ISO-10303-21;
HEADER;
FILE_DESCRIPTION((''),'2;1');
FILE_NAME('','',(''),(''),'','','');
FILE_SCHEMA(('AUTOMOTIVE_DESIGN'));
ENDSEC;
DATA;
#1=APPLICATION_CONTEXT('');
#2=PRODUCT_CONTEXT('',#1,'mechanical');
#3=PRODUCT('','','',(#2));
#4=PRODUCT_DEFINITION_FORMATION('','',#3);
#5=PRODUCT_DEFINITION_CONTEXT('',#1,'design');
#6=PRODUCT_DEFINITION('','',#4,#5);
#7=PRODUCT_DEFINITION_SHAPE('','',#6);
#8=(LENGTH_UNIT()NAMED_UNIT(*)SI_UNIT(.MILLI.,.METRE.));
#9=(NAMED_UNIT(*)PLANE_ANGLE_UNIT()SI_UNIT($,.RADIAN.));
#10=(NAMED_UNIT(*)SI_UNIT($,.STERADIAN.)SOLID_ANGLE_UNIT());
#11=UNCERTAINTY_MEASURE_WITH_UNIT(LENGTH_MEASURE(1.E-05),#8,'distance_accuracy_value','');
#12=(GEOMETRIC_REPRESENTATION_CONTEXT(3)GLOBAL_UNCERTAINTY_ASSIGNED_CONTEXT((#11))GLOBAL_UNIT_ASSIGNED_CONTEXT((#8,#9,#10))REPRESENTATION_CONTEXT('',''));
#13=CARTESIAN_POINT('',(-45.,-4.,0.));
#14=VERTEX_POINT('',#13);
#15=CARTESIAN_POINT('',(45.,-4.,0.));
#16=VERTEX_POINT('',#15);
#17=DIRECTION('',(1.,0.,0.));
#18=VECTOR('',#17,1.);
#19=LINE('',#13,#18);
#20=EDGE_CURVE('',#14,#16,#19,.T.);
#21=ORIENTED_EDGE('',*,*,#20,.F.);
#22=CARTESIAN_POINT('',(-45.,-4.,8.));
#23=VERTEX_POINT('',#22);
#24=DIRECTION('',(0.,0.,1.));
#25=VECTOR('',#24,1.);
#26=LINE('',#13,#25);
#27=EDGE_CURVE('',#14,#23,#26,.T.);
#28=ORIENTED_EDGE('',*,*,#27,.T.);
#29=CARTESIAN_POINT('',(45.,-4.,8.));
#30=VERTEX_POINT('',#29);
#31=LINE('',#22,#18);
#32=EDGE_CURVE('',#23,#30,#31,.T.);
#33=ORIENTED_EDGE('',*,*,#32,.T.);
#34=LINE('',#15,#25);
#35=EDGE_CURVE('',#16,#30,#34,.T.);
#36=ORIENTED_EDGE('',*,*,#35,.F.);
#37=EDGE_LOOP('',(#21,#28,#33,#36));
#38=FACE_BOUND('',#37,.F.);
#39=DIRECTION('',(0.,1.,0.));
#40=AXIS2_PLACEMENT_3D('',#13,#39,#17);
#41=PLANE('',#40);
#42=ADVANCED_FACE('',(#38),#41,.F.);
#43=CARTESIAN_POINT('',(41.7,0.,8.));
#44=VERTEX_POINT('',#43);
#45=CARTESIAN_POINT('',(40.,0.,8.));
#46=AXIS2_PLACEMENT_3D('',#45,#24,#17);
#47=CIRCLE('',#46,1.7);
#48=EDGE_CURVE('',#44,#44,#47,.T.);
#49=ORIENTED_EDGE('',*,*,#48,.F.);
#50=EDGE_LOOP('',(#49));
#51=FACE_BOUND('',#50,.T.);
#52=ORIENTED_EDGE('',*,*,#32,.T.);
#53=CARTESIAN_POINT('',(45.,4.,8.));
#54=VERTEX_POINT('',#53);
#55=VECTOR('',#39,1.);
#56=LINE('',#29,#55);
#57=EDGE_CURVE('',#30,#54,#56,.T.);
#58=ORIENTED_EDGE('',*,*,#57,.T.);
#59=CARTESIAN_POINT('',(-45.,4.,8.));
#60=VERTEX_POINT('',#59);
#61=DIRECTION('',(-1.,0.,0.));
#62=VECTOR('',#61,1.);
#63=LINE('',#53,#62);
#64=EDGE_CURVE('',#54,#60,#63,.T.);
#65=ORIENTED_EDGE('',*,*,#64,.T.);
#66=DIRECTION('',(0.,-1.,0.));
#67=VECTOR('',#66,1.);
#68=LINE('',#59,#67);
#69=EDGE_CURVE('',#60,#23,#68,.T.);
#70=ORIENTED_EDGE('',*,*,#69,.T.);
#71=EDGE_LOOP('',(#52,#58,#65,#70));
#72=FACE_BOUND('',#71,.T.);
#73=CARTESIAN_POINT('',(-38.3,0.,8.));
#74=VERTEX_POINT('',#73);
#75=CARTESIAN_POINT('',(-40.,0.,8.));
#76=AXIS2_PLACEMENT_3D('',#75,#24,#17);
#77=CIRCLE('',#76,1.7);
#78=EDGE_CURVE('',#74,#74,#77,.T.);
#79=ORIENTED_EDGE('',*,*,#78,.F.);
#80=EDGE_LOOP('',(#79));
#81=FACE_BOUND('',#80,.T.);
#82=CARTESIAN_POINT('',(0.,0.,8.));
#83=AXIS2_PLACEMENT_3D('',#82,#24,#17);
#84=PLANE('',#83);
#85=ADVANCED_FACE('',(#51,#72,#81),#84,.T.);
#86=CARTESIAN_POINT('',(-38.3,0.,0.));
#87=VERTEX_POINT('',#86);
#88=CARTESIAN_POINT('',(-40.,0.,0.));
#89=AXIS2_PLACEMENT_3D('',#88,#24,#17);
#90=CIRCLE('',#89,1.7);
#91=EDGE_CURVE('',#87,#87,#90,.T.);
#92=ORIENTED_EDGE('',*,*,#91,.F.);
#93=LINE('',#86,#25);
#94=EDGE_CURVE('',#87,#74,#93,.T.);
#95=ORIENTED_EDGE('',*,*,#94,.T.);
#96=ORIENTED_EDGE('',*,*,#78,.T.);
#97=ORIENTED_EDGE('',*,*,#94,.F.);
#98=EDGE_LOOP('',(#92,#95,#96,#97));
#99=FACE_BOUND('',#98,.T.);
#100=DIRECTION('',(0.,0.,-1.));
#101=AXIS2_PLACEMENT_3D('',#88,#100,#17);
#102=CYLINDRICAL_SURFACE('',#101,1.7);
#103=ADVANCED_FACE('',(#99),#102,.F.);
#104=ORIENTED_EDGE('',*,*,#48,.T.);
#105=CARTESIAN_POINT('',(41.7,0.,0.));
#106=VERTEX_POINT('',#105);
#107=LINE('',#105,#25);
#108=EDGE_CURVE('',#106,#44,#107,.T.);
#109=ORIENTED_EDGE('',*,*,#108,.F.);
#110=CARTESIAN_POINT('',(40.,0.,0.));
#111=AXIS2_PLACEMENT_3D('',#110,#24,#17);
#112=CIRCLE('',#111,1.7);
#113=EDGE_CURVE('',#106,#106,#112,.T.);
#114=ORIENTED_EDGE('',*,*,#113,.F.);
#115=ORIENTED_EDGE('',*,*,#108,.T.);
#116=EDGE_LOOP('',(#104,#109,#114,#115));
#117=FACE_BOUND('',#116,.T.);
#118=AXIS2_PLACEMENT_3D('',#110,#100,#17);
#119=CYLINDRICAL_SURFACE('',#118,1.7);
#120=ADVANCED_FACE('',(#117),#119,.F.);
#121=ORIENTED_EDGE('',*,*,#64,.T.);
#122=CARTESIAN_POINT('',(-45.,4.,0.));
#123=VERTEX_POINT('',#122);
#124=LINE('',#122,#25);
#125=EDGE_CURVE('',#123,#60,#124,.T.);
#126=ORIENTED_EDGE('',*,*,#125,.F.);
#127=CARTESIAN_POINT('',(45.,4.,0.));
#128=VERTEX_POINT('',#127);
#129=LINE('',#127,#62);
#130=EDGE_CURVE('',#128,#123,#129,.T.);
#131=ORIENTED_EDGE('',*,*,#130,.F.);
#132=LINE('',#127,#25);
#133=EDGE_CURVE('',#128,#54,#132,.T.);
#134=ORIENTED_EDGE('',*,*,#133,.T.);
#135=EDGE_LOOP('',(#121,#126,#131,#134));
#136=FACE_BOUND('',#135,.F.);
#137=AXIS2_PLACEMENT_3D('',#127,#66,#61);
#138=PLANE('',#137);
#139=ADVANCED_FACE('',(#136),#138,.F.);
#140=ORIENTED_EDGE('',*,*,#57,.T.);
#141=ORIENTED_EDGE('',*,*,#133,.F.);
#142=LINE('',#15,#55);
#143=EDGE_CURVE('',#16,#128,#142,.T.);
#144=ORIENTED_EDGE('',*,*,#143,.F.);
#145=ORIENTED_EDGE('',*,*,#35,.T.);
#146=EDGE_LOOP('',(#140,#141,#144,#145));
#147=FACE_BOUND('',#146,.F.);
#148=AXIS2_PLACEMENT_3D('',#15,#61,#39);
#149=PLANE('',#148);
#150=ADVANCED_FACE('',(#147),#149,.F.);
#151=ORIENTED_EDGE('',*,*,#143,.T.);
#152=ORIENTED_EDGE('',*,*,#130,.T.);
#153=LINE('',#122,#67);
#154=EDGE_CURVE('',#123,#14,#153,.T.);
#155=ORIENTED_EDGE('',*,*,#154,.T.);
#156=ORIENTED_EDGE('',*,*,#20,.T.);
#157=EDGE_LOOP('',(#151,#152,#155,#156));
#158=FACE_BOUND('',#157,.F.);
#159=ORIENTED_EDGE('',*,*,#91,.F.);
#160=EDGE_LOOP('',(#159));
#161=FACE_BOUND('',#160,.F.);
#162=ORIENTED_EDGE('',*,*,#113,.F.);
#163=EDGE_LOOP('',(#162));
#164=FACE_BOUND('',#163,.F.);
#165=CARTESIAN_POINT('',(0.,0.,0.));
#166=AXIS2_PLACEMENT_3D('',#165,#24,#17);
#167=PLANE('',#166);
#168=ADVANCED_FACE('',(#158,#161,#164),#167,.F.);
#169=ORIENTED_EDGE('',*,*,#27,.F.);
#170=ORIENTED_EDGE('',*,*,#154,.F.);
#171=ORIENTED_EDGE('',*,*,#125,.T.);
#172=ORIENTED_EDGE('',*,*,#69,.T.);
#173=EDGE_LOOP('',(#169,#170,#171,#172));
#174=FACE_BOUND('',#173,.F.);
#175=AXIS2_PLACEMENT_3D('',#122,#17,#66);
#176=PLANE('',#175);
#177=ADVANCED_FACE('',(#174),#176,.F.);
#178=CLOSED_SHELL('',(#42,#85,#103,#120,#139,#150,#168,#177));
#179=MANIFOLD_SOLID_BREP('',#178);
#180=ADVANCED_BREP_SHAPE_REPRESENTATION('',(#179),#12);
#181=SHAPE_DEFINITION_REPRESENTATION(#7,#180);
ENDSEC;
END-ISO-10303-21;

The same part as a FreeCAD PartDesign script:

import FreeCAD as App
import Part
import Sketcher

V = App.Vector
Q = App.Units.Quantity


def add_polygon(sketch, points):
    """Adds a closed chain of lines whose ends are joined by coincident constraints."""
    first, n = sketch.GeometryCount, len(points)
    for a, b in zip(points, points[1:] + points[:1]):
        sketch.addGeometry(Part.LineSegment(App.Vector(*a, 0), App.Vector(*b, 0)), False)
    for i in range(n):
        sketch.addConstraint(Sketcher.Constraint("Coincident", first + i, 2, first + (i + 1) % n, 1))

doc = App.newDocument("Part")
body = doc.addObject("PartDesign::Body", "Body")

sketch1 = body.newObject("Sketcher::SketchObject", "Sketch")
sketch1.AttachmentSupport = (doc.getObject("XY_Plane"), [""])
sketch1.MapMode = "FlatFace"
add_polygon(sketch1, [(-45, 4), (-45, -4), (45, -4), (45, 4)])
sketch1.addGeometry(Part.Circle(V(-40, 0, 0), V(0, 0, 1), 1.7), False)
sketch1.addGeometry(Part.Circle(V(40, 0, 0), V(0, 0, 1), 1.7), False)
sketch1.addConstraint(Sketcher.Constraint("Vertical", 0))
sketch1.addConstraint(Sketcher.Constraint("Horizontal", 1))
sketch1.addConstraint(Sketcher.Constraint("Vertical", 2))
sketch1.addConstraint(Sketcher.Constraint("Horizontal", 3))
sketch1.addConstraint(Sketcher.Constraint("Equal", 4, 5))
sketch1.addConstraint(Sketcher.Constraint("Symmetric", 4, 3, 5, 3, -1, 1))
sketch1.addConstraint(Sketcher.Constraint("Symmetric", 0, 2, 2, 2, -1, 1))
sketch1.addConstraint(Sketcher.Constraint("PointOnObject", 4, 3, -1))
sketch1.addConstraint(Sketcher.Constraint("Diameter", 4, Q("3.4 mm")))
sketch1.addConstraint(Sketcher.Constraint("DistanceX", 1, 1, 1, 2, Q("90 mm")))
sketch1.addConstraint(Sketcher.Constraint("DistanceY", 0, 2, 0, 1, Q("8 mm")))
sketch1.addConstraint(Sketcher.Constraint("DistanceX", 4, 3, -1, 1, Q("40 mm")))
pad1 = body.newObject("PartDesign::Pad", "Pad")
pad1.Profile = sketch1
pad1.Length = 8

doc.recompute()
